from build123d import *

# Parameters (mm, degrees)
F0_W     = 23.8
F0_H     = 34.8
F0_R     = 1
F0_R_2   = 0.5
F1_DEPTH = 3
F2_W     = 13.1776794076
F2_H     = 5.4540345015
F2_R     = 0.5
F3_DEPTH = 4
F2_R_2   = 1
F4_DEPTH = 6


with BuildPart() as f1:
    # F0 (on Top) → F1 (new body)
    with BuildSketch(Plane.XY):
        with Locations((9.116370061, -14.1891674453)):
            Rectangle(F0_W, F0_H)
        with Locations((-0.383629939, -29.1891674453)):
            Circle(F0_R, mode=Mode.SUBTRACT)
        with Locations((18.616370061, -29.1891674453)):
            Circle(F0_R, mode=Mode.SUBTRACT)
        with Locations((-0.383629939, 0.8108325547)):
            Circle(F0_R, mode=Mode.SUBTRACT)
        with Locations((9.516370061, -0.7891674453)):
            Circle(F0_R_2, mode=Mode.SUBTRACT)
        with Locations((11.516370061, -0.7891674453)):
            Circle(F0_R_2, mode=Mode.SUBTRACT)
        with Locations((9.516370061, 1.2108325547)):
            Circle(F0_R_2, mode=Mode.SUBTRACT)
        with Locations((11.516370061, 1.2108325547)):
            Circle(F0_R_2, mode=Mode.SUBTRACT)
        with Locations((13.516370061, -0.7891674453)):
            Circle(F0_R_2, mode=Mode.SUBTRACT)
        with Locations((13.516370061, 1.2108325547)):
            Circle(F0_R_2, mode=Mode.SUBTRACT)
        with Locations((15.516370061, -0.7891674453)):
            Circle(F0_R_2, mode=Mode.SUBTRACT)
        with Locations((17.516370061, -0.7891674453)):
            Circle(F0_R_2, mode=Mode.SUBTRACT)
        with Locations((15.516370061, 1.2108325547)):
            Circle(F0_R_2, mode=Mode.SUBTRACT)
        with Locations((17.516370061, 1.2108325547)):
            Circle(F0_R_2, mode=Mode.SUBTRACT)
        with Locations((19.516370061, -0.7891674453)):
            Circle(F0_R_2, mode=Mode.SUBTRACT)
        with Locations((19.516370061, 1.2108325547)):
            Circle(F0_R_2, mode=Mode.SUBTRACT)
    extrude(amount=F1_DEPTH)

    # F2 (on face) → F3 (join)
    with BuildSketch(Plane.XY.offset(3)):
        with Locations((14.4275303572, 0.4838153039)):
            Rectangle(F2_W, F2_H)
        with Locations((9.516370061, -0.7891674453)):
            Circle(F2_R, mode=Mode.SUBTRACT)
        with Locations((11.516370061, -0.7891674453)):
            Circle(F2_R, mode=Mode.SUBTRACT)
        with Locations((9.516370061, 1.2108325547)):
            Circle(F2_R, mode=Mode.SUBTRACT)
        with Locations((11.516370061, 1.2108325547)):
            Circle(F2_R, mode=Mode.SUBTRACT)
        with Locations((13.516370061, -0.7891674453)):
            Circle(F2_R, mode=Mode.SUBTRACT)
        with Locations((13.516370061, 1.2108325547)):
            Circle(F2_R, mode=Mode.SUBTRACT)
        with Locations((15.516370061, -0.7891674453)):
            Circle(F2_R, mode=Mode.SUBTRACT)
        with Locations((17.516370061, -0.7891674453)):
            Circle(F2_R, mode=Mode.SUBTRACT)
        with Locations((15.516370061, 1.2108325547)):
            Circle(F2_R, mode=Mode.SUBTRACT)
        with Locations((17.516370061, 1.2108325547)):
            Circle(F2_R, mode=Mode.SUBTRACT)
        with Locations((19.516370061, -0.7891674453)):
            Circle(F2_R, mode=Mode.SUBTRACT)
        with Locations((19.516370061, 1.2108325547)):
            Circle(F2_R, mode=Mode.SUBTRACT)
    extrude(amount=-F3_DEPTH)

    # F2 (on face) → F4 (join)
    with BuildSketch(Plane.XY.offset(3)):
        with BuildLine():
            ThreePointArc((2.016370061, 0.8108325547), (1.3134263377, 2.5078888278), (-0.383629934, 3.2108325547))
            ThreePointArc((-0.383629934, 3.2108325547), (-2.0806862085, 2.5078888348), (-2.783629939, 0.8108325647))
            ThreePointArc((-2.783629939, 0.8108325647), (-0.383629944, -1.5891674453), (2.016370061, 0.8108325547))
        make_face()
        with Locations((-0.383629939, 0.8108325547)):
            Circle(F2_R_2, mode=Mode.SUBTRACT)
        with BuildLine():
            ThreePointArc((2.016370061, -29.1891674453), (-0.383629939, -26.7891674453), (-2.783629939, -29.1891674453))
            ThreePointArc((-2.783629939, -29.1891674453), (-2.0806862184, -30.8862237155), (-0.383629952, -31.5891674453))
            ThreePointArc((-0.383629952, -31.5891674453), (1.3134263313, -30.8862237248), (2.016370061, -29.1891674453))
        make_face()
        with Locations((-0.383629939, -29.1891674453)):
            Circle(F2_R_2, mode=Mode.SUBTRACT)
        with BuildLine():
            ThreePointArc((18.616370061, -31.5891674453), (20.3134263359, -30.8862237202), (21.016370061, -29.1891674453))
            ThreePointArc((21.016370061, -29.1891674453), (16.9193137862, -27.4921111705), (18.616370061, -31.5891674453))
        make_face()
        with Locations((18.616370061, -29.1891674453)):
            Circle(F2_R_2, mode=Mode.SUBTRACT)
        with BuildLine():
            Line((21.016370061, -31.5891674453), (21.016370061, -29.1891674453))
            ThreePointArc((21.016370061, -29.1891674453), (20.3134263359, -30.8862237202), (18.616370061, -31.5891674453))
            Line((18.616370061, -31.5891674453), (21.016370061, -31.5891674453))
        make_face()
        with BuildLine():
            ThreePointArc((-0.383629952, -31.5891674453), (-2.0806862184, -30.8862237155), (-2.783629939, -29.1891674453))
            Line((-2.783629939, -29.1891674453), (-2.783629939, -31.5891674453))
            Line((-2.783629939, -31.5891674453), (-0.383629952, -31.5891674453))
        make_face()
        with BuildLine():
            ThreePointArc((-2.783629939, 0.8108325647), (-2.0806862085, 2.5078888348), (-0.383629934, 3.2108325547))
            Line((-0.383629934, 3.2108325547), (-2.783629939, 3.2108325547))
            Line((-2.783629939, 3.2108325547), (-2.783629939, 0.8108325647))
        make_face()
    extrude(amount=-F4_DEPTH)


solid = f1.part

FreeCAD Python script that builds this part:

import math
import FreeCAD as App
import Part
import Sketcher
Q = App.Units.Quantity


def add_polygon(sketch, points):
    """Adds a closed chain of lines whose ends are joined by coincident constraints."""
    first, n = sketch.GeometryCount, len(points)
    for a, b in zip(points, points[1:] + points[:1]):
        sketch.addGeometry(Part.LineSegment(App.Vector(*a, 0), App.Vector(*b, 0)), False)
    for i in range(n):
        sketch.addConstraint(Sketcher.Constraint("Coincident", first + i, 2, first + (i + 1) % n, 1))

doc = App.newDocument("Part")
body = doc.addObject("PartDesign::Body", "Body")

# Sketch on XY plane
sketch1 = body.newObject("Sketcher::SketchObject", "Sketch")
sketch1.AttachmentSupport = (doc.getObject("XY_Plane"), [""])
sketch1.MapMode = "FlatFace"
add_polygon(sketch1, [(-2.78363, 3.210833), (-2.78363, -31.589167), (21.01637, -31.589167), (21.01637, 3.210833)])  # lines 0-3
sketch1.addGeometry(Part.Circle(App.Vector(-0.38363, -29.189167, 0), App.Vector(0, 0, 1), 1), False)  # 4
sketch1.addGeometry(Part.Circle(App.Vector(18.61637, -29.189167, 0), App.Vector(0, 0, 1), 1), False)  # 5
sketch1.addGeometry(Part.Circle(App.Vector(-0.38363, 0.810833, 0), App.Vector(0, 0, 1), 1), False)  # 6
sketch1.addGeometry(Part.Circle(App.Vector(9.51637, -0.789167, 0), App.Vector(0, 0, 1), 0.5), False)  # 7
sketch1.addGeometry(Part.Circle(App.Vector(11.51637, -0.789167, 0), App.Vector(0, 0, 1), 0.5), False)  # 8
sketch1.addGeometry(Part.Circle(App.Vector(9.51637, 1.210833, 0), App.Vector(0, 0, 1), 0.5), False)  # 9
sketch1.addGeometry(Part.Circle(App.Vector(11.51637, 1.210833, 0), App.Vector(0, 0, 1), 0.5), False)  # 10
sketch1.addGeometry(Part.Circle(App.Vector(13.51637, -0.789167, 0), App.Vector(0, 0, 1), 0.5), False)  # 11
sketch1.addGeometry(Part.Circle(App.Vector(13.51637, 1.210833, 0), App.Vector(0, 0, 1), 0.5), False)  # 12
sketch1.addGeometry(Part.Circle(App.Vector(15.51637, -0.789167, 0), App.Vector(0, 0, 1), 0.5), False)  # 13
sketch1.addGeometry(Part.Circle(App.Vector(15.51637, 1.210833, 0), App.Vector(0, 0, 1), 0.5), False)  # 14
sketch1.addGeometry(Part.Circle(App.Vector(17.51637, -0.789167, 0), App.Vector(0, 0, 1), 0.5), False)  # 15
sketch1.addGeometry(Part.Circle(App.Vector(19.51637, -0.789167, 0), App.Vector(0, 0, 1), 0.5), False)  # 16
sketch1.addGeometry(Part.Circle(App.Vector(17.51637, 1.210833, 0), App.Vector(0, 0, 1), 0.5), False)  # 17
sketch1.addGeometry(Part.Circle(App.Vector(19.51637, 1.210833, 0), App.Vector(0, 0, 1), 0.5), False)  # 18
sketch1.addConstraint([
    Sketcher.Constraint("Vertical", 0),
    Sketcher.Constraint("Horizontal", 1),
    Sketcher.Constraint("Vertical", 2),
    Sketcher.Constraint("Horizontal", 3),
    Sketcher.Constraint("Equal", 4, 5),
    Sketcher.Constraint("Equal", 5, 6),
    Sketcher.Constraint("Equal", 7, 8),
    Sketcher.Constraint("Equal", 8, 9),
    Sketcher.Constraint("Equal", 9, 10),
    Sketcher.Constraint("Equal", 10, 11),
    Sketcher.Constraint("Equal", 11, 12),
    Sketcher.Constraint("Equal", 12, 13),
    Sketcher.Constraint("Equal", 13, 14),
    Sketcher.Constraint("Equal", 14, 15),
    Sketcher.Constraint("Equal", 15, 16),
    Sketcher.Constraint("Equal", 16, 17),
    Sketcher.Constraint("Equal", 17, 18),
    Sketcher.Constraint("Horizontal", 4, 3, 5, 3),
    Sketcher.Constraint("Horizontal", 7, 3, 8, 3),
    Sketcher.Constraint("Horizontal", 9, 3, 10, 3),
    Sketcher.Constraint("Horizontal", 8, 3, 11, 3),
    Sketcher.Constraint("Horizontal", 10, 3, 12, 3),
    Sketcher.Constraint("Horizontal", 11, 3, 13, 3),
    Sketcher.Constraint("Horizontal", 12, 3, 14, 3),
    Sketcher.Constraint("Horizontal", 13, 3, 15, 3),
    Sketcher.Constraint("Horizontal", 15, 3, 16, 3),
    Sketcher.Constraint("Horizontal", 14, 3, 17, 3),
    Sketcher.Constraint("Horizontal", 17, 3, 18, 3),
    Sketcher.Constraint("Vertical", 4, 3, 6, 3),
    Sketcher.Constraint("Vertical", 7, 3, 9, 3),
    Sketcher.Constraint("Vertical", 8, 3, 10, 3),
    Sketcher.Constraint("Vertical", 11, 3, 12, 3),
    Sketcher.Constraint("Vertical", 13, 3, 14, 3),
    Sketcher.Constraint("Vertical", 15, 3, 17, 3),
    Sketcher.Constraint("Vertical", 16, 3, 18, 3),
    Sketcher.Constraint("Diameter", 4, Q("2 mm")),
    Sketcher.Constraint("Diameter", 7, Q("1 mm")),
    Sketcher.Constraint("DistanceX", 1, 1, 1, 2, Q("23.8 mm")),
    Sketcher.Constraint("DistanceY", 0, 2, 0, 1, Q("34.8 mm")),
    Sketcher.Constraint("DistanceX", 4, 3, 5, 3, Q("19 mm")),
    Sketcher.Constraint("DistanceY", 4, 3, 6, 3, Q("30 mm")),
    Sketcher.Constraint("DistanceX", 7, 3, 8, 3, Q("2 mm")),
    Sketcher.Constraint("DistanceY", 7, 3, 9, 3, Q("2 mm")),
    Sketcher.Constraint("DistanceX", 8, 3, 11, 3, Q("2 mm")),
    Sketcher.Constraint("DistanceX", 11, 3, 13, 3, Q("2 mm")),
    Sketcher.Constraint("DistanceX", 13, 3, 15, 3, Q("2 mm")),
    Sketcher.Constraint("DistanceX", 15, 3, 16, 3, Q("2 mm")),
    Sketcher.Constraint("DistanceY", 18, 3, 2, 2, Q("2 mm")),
    Sketcher.Constraint("DistanceX", 6, 3, 7, 3, Q("9.9 mm")),
    Sketcher.Constraint("DistanceY", 7, 3, 6, 3, Q("1.6 mm")),
    Sketcher.Constraint("DistanceX", 0, 2, 4, 3, Q("2.4 mm")),
    Sketcher.Constraint("DistanceX", 4, 3, -1, 1, Q("0.38363 mm")),
    Sketcher.Constraint("DistanceY", 4, 3, -1, 1, Q("29.189167 mm")),
])
pad1 = body.newObject("PartDesign::Pad", "Pad")
pad1.Profile = sketch1
pad1.Length = 3

# Sketch on XY plane
sketch2 = body.newObject("Sketcher::SketchObject", "Sketch001")
sketch2.AttachmentSupport = (doc.getObject("XY_Plane"), [""])
sketch2.MapMode = "FlatFace"
sketch2.AttachmentOffset = App.Placement(App.Vector(0, 0, 3), App.Rotation())
add_polygon(sketch2, [(7.838691, 3.210833), (7.838691, -2.243202), (21.01637, -2.243202), (21.01637, 3.210833)])  # lines 0-3
sketch2.addGeometry(Part.Circle(App.Vector(9.51637, -0.789167, 0), App.Vector(0, 0, 1), 0.5), False)  # 4
sketch2.addGeometry(Part.Circle(App.Vector(11.51637, -0.789167, 0), App.Vector(0, 0, 1), 0.5), False)  # 5
sketch2.addGeometry(Part.Circle(App.Vector(13.51637, -0.789167, 0), App.Vector(0, 0, 1), 0.5), False)  # 6
sketch2.addGeometry(Part.Circle(App.Vector(15.51637, -0.789167, 0), App.Vector(0, 0, 1), 0.5), False)  # 7
sketch2.addGeometry(Part.Circle(App.Vector(17.51637, -0.789167, 0), App.Vector(0, 0, 1), 0.5), False)  # 8
sketch2.addGeometry(Part.Circle(App.Vector(19.51637, -0.789167, 0), App.Vector(0, 0, 1), 0.5), False)  # 9
sketch2.addGeometry(Part.Circle(App.Vector(9.51637, 1.210833, 0), App.Vector(0, 0, 1), 0.5), False)  # 10
sketch2.addGeometry(Part.Circle(App.Vector(11.51637, 1.210833, 0), App.Vector(0, 0, 1), 0.5), False)  # 11
sketch2.addGeometry(Part.Circle(App.Vector(13.51637, 1.210833, 0), App.Vector(0, 0, 1), 0.5), False)  # 12
sketch2.addGeometry(Part.Circle(App.Vector(15.51637, 1.210833, 0), App.Vector(0, 0, 1), 0.5), False)  # 13
sketch2.addGeometry(Part.Circle(App.Vector(17.51637, 1.210833, 0), App.Vector(0, 0, 1), 0.5), False)  # 14
sketch2.addGeometry(Part.Circle(App.Vector(19.51637, 1.210833, 0), App.Vector(0, 0, 1), 0.5), False)  # 15
sketch2.addConstraint([
    Sketcher.Constraint("Vertical", 0),
    Sketcher.Constraint("Horizontal", 1),
    Sketcher.Constraint("Vertical", 2),
    Sketcher.Constraint("Horizontal", 3),
    Sketcher.Constraint("Equal", 4, 5),
    Sketcher.Constraint("Equal", 5, 6),
    Sketcher.Constraint("Equal", 6, 7),
    Sketcher.Constraint("Equal", 7, 8),
    Sketcher.Constraint("Equal", 8, 9),
    Sketcher.Constraint("Equal", 9, 10),
    Sketcher.Constraint("Equal", 10, 11),
    Sketcher.Constraint("Equal", 11, 12),
    Sketcher.Constraint("Equal", 12, 13),
    Sketcher.Constraint("Equal", 13, 14),
    Sketcher.Constraint("Equal", 14, 15),
    Sketcher.Constraint("Horizontal", 4, 3, 5, 3),
    Sketcher.Constraint("Horizontal", 5, 3, 6, 3),
    Sketcher.Constraint("Horizontal", 6, 3, 7, 3),
    Sketcher.Constraint("Horizontal", 7, 3, 8, 3),
    Sketcher.Constraint("Horizontal", 8, 3, 9, 3),
    Sketcher.Constraint("Horizontal", 10, 3, 11, 3),
    Sketcher.Constraint("Horizontal", 11, 3, 12, 3),
    Sketcher.Constraint("Horizontal", 12, 3, 13, 3),
    Sketcher.Constraint("Horizontal", 13, 3, 14, 3),
    Sketcher.Constraint("Horizontal", 14, 3, 15, 3),
    Sketcher.Constraint("Vertical", 4, 3, 10, 3),
    Sketcher.Constraint("Vertical", 5, 3, 11, 3),
    Sketcher.Constraint("Vertical", 6, 3, 12, 3),
    Sketcher.Constraint("Vertical", 7, 3, 13, 3),
    Sketcher.Constraint("Vertical", 8, 3, 14, 3),
    Sketcher.Constraint("Vertical", 9, 3, 15, 3),
    Sketcher.Constraint("Diameter", 4, Q("1 mm")),
    Sketcher.Constraint("DistanceX", 4, 3, 5, 3, Q("2 mm")),
    Sketcher.Constraint("DistanceX", 5, 3, 6, 3, Q("2 mm")),
    Sketcher.Constraint("DistanceX", 6, 3, 7, 3, Q("2 mm")),
    Sketcher.Constraint("DistanceX", 7, 3, 8, 3, Q("2 mm")),
    Sketcher.Constraint("DistanceX", 8, 3, 9, 3, Q("2 mm")),
    Sketcher.Constraint("DistanceY", 4, 3, 10, 3, Q("2 mm")),
    Sketcher.Constraint("DistanceY", 15, 3, 2, 2, Q("2 mm")),
    Sketcher.Constraint("DistanceX", 9, 3, 1, 2, Q("1.5 mm")),
    Sketcher.Constraint("DistanceX", 1, 1, 1, 2, Q("13.177679 mm")),
    Sketcher.Constraint("DistanceY", 0, 2, -1, 1, Q("2.243202 mm")),
    Sketcher.Constraint("DistanceY", 0, 2, 0, 1, Q("5.454035 mm")),
    Sketcher.Constraint("DistanceX", -1, 1, 4, 3, Q("9.51637 mm")),
])
pad2 = body.newObject("PartDesign::Pad", "Pad001")
pad2.Profile = sketch2
pad2.Length = 4
pad2.Reversed = True

# Sketch on XY plane
sketch3 = body.newObject("Sketcher::SketchObject", "Sketch002")
sketch3.AttachmentSupport = (doc.getObject("XY_Plane"), [""])
sketch3.MapMode = "FlatFace"
sketch3.AttachmentOffset = App.Placement(App.Vector(0, 0, 3), App.Rotation())
sketch3.addGeometry([
    Part.ArcOfCircle(Part.Circle(App.Vector(-0.38363, 0.810833, 0), App.Vector(0, 0, 1), 2.4), math.radians(0), math.radians(90)),  # 0
    Part.LineSegment(App.Vector(-0.38363, 3.210833, 0), App.Vector(-2.78363, 3.210833, 0)),  # 1
    Part.LineSegment(App.Vector(-2.78363, 3.210833, 0), App.Vector(-2.78363, 0.810833, 0)),  # 2
    Part.ArcOfCircle(Part.Circle(App.Vector(-0.38363, 0.810833, 0), App.Vector(0, 0, 1), 2.4), math.radians(180), math.radians(360)),  # 3
    Part.Circle(App.Vector(-0.38363, 0.810833, 0), App.Vector(0, 0, 1), 1),  # 4
    Part.ArcOfCircle(Part.Circle(App.Vector(-0.38363, -29.189167, 0), App.Vector(0, 0, 1), 2.4), math.radians(0), math.radians(180)),  # 5
    Part.LineSegment(App.Vector(-2.78363, -29.189167, 0), App.Vector(-2.78363, -31.589167, 0)),  # 6
    Part.LineSegment(App.Vector(-2.78363, -31.589167, 0), App.Vector(-0.38363, -31.589167, 0)),  # 7
    Part.ArcOfCircle(Part.Circle(App.Vector(-0.38363, -29.189167, 0), App.Vector(0, 0, 1), 2.4), math.radians(-90), math.radians(0)),  # 8
    Part.Circle(App.Vector(-0.38363, -29.189167, 0), App.Vector(0, 0, 1), 1),  # 9
    Part.ArcOfCircle(Part.Circle(App.Vector(18.61637, -29.189167, 0), App.Vector(0, 0, 1), 2.4), math.radians(0), math.radians(270)),  # 10
    Part.LineSegment(App.Vector(18.61637, -31.589167, 0), App.Vector(21.01637, -31.589167, 0)),  # 11
    Part.LineSegment(App.Vector(21.01637, -31.589167, 0), App.Vector(21.01637, -29.189167, 0)),  # 12
    Part.Circle(App.Vector(18.61637, -29.189167, 0), App.Vector(0, 0, 1), 1),  # 13
], False)
sketch3.addConstraint([
    Sketcher.Constraint("Tangent", 0, 2, 1, 1),
    Sketcher.Constraint("Coincident", 1, 2, 2, 1),
    Sketcher.Constraint("Tangent", 2, 2, 3, 1),
    Sketcher.Constraint("Tangent", 3, 2, 0, 1),
    Sketcher.Constraint("Tangent", 5, 2, 6, 1),
    Sketcher.Constraint("Coincident", 6, 2, 7, 1),
    Sketcher.Constraint("Tangent", 7, 2, 8, 1),
    Sketcher.Constraint("Tangent", 8, 2, 5, 1),
    Sketcher.Constraint("Tangent", 10, 2, 11, 1),
    Sketcher.Constraint("Coincident", 11, 2, 12, 1),
    Sketcher.Constraint("Tangent", 12, 2, 10, 1),
    Sketcher.Constraint("Horizontal", 1),
    Sketcher.Constraint("Vertical", 2),
    Sketcher.Constraint("Vertical", 6),
    Sketcher.Constraint("Horizontal", 7),
    Sketcher.Constraint("Horizontal", 11),
    Sketcher.Constraint("Vertical", 12),
    Sketcher.Constraint("Coincident", 4, 3, 0, 3),
    Sketcher.Constraint("Coincident", 9, 3, 5, 3),
    Sketcher.Constraint("Coincident", 13, 3, 10, 3),
    Sketcher.Constraint("Equal", 0, 3),
    Sketcher.Constraint("Equal", 3, 5),
    Sketcher.Constraint("Equal", 5, 8),
    Sketcher.Constraint("Equal", 4, 9),
    Sketcher.Constraint("Equal", 8, 10),
    Sketcher.Constraint("Equal", 9, 13),
    Sketcher.Constraint("Horizontal", 9, 3, 10, 3),
    Sketcher.Constraint("Horizontal", 2, 2, 3, 2),
    Sketcher.Constraint("Horizontal", 5, 2, 8, 2),
    Sketcher.Constraint("Vertical", 4, 3, 5, 3),
    Sketcher.Constraint("Diameter", 4, Q("2 mm")),
    Sketcher.Constraint("Radius", 0, Q("2.4 mm")),
    Sketcher.Constraint("DistanceY", 5, 3, 0, 3, Q("30 mm")),
    Sketcher.Constraint("DistanceX", 5, 3, 10, 3, Q("19 mm")),
    Sketcher.Constraint("DistanceX", 0, 3, -1, 1, Q("0.38363 mm")),
    Sketcher.Constraint("DistanceY", -1, 1, 0, 3, Q("0.810833 mm")),
])
pad3 = body.newObject("PartDesign::Pad", "Pad002")
pad3.Profile = sketch3
pad3.Length = 6
pad3.Reversed = True

doc.recompute()
